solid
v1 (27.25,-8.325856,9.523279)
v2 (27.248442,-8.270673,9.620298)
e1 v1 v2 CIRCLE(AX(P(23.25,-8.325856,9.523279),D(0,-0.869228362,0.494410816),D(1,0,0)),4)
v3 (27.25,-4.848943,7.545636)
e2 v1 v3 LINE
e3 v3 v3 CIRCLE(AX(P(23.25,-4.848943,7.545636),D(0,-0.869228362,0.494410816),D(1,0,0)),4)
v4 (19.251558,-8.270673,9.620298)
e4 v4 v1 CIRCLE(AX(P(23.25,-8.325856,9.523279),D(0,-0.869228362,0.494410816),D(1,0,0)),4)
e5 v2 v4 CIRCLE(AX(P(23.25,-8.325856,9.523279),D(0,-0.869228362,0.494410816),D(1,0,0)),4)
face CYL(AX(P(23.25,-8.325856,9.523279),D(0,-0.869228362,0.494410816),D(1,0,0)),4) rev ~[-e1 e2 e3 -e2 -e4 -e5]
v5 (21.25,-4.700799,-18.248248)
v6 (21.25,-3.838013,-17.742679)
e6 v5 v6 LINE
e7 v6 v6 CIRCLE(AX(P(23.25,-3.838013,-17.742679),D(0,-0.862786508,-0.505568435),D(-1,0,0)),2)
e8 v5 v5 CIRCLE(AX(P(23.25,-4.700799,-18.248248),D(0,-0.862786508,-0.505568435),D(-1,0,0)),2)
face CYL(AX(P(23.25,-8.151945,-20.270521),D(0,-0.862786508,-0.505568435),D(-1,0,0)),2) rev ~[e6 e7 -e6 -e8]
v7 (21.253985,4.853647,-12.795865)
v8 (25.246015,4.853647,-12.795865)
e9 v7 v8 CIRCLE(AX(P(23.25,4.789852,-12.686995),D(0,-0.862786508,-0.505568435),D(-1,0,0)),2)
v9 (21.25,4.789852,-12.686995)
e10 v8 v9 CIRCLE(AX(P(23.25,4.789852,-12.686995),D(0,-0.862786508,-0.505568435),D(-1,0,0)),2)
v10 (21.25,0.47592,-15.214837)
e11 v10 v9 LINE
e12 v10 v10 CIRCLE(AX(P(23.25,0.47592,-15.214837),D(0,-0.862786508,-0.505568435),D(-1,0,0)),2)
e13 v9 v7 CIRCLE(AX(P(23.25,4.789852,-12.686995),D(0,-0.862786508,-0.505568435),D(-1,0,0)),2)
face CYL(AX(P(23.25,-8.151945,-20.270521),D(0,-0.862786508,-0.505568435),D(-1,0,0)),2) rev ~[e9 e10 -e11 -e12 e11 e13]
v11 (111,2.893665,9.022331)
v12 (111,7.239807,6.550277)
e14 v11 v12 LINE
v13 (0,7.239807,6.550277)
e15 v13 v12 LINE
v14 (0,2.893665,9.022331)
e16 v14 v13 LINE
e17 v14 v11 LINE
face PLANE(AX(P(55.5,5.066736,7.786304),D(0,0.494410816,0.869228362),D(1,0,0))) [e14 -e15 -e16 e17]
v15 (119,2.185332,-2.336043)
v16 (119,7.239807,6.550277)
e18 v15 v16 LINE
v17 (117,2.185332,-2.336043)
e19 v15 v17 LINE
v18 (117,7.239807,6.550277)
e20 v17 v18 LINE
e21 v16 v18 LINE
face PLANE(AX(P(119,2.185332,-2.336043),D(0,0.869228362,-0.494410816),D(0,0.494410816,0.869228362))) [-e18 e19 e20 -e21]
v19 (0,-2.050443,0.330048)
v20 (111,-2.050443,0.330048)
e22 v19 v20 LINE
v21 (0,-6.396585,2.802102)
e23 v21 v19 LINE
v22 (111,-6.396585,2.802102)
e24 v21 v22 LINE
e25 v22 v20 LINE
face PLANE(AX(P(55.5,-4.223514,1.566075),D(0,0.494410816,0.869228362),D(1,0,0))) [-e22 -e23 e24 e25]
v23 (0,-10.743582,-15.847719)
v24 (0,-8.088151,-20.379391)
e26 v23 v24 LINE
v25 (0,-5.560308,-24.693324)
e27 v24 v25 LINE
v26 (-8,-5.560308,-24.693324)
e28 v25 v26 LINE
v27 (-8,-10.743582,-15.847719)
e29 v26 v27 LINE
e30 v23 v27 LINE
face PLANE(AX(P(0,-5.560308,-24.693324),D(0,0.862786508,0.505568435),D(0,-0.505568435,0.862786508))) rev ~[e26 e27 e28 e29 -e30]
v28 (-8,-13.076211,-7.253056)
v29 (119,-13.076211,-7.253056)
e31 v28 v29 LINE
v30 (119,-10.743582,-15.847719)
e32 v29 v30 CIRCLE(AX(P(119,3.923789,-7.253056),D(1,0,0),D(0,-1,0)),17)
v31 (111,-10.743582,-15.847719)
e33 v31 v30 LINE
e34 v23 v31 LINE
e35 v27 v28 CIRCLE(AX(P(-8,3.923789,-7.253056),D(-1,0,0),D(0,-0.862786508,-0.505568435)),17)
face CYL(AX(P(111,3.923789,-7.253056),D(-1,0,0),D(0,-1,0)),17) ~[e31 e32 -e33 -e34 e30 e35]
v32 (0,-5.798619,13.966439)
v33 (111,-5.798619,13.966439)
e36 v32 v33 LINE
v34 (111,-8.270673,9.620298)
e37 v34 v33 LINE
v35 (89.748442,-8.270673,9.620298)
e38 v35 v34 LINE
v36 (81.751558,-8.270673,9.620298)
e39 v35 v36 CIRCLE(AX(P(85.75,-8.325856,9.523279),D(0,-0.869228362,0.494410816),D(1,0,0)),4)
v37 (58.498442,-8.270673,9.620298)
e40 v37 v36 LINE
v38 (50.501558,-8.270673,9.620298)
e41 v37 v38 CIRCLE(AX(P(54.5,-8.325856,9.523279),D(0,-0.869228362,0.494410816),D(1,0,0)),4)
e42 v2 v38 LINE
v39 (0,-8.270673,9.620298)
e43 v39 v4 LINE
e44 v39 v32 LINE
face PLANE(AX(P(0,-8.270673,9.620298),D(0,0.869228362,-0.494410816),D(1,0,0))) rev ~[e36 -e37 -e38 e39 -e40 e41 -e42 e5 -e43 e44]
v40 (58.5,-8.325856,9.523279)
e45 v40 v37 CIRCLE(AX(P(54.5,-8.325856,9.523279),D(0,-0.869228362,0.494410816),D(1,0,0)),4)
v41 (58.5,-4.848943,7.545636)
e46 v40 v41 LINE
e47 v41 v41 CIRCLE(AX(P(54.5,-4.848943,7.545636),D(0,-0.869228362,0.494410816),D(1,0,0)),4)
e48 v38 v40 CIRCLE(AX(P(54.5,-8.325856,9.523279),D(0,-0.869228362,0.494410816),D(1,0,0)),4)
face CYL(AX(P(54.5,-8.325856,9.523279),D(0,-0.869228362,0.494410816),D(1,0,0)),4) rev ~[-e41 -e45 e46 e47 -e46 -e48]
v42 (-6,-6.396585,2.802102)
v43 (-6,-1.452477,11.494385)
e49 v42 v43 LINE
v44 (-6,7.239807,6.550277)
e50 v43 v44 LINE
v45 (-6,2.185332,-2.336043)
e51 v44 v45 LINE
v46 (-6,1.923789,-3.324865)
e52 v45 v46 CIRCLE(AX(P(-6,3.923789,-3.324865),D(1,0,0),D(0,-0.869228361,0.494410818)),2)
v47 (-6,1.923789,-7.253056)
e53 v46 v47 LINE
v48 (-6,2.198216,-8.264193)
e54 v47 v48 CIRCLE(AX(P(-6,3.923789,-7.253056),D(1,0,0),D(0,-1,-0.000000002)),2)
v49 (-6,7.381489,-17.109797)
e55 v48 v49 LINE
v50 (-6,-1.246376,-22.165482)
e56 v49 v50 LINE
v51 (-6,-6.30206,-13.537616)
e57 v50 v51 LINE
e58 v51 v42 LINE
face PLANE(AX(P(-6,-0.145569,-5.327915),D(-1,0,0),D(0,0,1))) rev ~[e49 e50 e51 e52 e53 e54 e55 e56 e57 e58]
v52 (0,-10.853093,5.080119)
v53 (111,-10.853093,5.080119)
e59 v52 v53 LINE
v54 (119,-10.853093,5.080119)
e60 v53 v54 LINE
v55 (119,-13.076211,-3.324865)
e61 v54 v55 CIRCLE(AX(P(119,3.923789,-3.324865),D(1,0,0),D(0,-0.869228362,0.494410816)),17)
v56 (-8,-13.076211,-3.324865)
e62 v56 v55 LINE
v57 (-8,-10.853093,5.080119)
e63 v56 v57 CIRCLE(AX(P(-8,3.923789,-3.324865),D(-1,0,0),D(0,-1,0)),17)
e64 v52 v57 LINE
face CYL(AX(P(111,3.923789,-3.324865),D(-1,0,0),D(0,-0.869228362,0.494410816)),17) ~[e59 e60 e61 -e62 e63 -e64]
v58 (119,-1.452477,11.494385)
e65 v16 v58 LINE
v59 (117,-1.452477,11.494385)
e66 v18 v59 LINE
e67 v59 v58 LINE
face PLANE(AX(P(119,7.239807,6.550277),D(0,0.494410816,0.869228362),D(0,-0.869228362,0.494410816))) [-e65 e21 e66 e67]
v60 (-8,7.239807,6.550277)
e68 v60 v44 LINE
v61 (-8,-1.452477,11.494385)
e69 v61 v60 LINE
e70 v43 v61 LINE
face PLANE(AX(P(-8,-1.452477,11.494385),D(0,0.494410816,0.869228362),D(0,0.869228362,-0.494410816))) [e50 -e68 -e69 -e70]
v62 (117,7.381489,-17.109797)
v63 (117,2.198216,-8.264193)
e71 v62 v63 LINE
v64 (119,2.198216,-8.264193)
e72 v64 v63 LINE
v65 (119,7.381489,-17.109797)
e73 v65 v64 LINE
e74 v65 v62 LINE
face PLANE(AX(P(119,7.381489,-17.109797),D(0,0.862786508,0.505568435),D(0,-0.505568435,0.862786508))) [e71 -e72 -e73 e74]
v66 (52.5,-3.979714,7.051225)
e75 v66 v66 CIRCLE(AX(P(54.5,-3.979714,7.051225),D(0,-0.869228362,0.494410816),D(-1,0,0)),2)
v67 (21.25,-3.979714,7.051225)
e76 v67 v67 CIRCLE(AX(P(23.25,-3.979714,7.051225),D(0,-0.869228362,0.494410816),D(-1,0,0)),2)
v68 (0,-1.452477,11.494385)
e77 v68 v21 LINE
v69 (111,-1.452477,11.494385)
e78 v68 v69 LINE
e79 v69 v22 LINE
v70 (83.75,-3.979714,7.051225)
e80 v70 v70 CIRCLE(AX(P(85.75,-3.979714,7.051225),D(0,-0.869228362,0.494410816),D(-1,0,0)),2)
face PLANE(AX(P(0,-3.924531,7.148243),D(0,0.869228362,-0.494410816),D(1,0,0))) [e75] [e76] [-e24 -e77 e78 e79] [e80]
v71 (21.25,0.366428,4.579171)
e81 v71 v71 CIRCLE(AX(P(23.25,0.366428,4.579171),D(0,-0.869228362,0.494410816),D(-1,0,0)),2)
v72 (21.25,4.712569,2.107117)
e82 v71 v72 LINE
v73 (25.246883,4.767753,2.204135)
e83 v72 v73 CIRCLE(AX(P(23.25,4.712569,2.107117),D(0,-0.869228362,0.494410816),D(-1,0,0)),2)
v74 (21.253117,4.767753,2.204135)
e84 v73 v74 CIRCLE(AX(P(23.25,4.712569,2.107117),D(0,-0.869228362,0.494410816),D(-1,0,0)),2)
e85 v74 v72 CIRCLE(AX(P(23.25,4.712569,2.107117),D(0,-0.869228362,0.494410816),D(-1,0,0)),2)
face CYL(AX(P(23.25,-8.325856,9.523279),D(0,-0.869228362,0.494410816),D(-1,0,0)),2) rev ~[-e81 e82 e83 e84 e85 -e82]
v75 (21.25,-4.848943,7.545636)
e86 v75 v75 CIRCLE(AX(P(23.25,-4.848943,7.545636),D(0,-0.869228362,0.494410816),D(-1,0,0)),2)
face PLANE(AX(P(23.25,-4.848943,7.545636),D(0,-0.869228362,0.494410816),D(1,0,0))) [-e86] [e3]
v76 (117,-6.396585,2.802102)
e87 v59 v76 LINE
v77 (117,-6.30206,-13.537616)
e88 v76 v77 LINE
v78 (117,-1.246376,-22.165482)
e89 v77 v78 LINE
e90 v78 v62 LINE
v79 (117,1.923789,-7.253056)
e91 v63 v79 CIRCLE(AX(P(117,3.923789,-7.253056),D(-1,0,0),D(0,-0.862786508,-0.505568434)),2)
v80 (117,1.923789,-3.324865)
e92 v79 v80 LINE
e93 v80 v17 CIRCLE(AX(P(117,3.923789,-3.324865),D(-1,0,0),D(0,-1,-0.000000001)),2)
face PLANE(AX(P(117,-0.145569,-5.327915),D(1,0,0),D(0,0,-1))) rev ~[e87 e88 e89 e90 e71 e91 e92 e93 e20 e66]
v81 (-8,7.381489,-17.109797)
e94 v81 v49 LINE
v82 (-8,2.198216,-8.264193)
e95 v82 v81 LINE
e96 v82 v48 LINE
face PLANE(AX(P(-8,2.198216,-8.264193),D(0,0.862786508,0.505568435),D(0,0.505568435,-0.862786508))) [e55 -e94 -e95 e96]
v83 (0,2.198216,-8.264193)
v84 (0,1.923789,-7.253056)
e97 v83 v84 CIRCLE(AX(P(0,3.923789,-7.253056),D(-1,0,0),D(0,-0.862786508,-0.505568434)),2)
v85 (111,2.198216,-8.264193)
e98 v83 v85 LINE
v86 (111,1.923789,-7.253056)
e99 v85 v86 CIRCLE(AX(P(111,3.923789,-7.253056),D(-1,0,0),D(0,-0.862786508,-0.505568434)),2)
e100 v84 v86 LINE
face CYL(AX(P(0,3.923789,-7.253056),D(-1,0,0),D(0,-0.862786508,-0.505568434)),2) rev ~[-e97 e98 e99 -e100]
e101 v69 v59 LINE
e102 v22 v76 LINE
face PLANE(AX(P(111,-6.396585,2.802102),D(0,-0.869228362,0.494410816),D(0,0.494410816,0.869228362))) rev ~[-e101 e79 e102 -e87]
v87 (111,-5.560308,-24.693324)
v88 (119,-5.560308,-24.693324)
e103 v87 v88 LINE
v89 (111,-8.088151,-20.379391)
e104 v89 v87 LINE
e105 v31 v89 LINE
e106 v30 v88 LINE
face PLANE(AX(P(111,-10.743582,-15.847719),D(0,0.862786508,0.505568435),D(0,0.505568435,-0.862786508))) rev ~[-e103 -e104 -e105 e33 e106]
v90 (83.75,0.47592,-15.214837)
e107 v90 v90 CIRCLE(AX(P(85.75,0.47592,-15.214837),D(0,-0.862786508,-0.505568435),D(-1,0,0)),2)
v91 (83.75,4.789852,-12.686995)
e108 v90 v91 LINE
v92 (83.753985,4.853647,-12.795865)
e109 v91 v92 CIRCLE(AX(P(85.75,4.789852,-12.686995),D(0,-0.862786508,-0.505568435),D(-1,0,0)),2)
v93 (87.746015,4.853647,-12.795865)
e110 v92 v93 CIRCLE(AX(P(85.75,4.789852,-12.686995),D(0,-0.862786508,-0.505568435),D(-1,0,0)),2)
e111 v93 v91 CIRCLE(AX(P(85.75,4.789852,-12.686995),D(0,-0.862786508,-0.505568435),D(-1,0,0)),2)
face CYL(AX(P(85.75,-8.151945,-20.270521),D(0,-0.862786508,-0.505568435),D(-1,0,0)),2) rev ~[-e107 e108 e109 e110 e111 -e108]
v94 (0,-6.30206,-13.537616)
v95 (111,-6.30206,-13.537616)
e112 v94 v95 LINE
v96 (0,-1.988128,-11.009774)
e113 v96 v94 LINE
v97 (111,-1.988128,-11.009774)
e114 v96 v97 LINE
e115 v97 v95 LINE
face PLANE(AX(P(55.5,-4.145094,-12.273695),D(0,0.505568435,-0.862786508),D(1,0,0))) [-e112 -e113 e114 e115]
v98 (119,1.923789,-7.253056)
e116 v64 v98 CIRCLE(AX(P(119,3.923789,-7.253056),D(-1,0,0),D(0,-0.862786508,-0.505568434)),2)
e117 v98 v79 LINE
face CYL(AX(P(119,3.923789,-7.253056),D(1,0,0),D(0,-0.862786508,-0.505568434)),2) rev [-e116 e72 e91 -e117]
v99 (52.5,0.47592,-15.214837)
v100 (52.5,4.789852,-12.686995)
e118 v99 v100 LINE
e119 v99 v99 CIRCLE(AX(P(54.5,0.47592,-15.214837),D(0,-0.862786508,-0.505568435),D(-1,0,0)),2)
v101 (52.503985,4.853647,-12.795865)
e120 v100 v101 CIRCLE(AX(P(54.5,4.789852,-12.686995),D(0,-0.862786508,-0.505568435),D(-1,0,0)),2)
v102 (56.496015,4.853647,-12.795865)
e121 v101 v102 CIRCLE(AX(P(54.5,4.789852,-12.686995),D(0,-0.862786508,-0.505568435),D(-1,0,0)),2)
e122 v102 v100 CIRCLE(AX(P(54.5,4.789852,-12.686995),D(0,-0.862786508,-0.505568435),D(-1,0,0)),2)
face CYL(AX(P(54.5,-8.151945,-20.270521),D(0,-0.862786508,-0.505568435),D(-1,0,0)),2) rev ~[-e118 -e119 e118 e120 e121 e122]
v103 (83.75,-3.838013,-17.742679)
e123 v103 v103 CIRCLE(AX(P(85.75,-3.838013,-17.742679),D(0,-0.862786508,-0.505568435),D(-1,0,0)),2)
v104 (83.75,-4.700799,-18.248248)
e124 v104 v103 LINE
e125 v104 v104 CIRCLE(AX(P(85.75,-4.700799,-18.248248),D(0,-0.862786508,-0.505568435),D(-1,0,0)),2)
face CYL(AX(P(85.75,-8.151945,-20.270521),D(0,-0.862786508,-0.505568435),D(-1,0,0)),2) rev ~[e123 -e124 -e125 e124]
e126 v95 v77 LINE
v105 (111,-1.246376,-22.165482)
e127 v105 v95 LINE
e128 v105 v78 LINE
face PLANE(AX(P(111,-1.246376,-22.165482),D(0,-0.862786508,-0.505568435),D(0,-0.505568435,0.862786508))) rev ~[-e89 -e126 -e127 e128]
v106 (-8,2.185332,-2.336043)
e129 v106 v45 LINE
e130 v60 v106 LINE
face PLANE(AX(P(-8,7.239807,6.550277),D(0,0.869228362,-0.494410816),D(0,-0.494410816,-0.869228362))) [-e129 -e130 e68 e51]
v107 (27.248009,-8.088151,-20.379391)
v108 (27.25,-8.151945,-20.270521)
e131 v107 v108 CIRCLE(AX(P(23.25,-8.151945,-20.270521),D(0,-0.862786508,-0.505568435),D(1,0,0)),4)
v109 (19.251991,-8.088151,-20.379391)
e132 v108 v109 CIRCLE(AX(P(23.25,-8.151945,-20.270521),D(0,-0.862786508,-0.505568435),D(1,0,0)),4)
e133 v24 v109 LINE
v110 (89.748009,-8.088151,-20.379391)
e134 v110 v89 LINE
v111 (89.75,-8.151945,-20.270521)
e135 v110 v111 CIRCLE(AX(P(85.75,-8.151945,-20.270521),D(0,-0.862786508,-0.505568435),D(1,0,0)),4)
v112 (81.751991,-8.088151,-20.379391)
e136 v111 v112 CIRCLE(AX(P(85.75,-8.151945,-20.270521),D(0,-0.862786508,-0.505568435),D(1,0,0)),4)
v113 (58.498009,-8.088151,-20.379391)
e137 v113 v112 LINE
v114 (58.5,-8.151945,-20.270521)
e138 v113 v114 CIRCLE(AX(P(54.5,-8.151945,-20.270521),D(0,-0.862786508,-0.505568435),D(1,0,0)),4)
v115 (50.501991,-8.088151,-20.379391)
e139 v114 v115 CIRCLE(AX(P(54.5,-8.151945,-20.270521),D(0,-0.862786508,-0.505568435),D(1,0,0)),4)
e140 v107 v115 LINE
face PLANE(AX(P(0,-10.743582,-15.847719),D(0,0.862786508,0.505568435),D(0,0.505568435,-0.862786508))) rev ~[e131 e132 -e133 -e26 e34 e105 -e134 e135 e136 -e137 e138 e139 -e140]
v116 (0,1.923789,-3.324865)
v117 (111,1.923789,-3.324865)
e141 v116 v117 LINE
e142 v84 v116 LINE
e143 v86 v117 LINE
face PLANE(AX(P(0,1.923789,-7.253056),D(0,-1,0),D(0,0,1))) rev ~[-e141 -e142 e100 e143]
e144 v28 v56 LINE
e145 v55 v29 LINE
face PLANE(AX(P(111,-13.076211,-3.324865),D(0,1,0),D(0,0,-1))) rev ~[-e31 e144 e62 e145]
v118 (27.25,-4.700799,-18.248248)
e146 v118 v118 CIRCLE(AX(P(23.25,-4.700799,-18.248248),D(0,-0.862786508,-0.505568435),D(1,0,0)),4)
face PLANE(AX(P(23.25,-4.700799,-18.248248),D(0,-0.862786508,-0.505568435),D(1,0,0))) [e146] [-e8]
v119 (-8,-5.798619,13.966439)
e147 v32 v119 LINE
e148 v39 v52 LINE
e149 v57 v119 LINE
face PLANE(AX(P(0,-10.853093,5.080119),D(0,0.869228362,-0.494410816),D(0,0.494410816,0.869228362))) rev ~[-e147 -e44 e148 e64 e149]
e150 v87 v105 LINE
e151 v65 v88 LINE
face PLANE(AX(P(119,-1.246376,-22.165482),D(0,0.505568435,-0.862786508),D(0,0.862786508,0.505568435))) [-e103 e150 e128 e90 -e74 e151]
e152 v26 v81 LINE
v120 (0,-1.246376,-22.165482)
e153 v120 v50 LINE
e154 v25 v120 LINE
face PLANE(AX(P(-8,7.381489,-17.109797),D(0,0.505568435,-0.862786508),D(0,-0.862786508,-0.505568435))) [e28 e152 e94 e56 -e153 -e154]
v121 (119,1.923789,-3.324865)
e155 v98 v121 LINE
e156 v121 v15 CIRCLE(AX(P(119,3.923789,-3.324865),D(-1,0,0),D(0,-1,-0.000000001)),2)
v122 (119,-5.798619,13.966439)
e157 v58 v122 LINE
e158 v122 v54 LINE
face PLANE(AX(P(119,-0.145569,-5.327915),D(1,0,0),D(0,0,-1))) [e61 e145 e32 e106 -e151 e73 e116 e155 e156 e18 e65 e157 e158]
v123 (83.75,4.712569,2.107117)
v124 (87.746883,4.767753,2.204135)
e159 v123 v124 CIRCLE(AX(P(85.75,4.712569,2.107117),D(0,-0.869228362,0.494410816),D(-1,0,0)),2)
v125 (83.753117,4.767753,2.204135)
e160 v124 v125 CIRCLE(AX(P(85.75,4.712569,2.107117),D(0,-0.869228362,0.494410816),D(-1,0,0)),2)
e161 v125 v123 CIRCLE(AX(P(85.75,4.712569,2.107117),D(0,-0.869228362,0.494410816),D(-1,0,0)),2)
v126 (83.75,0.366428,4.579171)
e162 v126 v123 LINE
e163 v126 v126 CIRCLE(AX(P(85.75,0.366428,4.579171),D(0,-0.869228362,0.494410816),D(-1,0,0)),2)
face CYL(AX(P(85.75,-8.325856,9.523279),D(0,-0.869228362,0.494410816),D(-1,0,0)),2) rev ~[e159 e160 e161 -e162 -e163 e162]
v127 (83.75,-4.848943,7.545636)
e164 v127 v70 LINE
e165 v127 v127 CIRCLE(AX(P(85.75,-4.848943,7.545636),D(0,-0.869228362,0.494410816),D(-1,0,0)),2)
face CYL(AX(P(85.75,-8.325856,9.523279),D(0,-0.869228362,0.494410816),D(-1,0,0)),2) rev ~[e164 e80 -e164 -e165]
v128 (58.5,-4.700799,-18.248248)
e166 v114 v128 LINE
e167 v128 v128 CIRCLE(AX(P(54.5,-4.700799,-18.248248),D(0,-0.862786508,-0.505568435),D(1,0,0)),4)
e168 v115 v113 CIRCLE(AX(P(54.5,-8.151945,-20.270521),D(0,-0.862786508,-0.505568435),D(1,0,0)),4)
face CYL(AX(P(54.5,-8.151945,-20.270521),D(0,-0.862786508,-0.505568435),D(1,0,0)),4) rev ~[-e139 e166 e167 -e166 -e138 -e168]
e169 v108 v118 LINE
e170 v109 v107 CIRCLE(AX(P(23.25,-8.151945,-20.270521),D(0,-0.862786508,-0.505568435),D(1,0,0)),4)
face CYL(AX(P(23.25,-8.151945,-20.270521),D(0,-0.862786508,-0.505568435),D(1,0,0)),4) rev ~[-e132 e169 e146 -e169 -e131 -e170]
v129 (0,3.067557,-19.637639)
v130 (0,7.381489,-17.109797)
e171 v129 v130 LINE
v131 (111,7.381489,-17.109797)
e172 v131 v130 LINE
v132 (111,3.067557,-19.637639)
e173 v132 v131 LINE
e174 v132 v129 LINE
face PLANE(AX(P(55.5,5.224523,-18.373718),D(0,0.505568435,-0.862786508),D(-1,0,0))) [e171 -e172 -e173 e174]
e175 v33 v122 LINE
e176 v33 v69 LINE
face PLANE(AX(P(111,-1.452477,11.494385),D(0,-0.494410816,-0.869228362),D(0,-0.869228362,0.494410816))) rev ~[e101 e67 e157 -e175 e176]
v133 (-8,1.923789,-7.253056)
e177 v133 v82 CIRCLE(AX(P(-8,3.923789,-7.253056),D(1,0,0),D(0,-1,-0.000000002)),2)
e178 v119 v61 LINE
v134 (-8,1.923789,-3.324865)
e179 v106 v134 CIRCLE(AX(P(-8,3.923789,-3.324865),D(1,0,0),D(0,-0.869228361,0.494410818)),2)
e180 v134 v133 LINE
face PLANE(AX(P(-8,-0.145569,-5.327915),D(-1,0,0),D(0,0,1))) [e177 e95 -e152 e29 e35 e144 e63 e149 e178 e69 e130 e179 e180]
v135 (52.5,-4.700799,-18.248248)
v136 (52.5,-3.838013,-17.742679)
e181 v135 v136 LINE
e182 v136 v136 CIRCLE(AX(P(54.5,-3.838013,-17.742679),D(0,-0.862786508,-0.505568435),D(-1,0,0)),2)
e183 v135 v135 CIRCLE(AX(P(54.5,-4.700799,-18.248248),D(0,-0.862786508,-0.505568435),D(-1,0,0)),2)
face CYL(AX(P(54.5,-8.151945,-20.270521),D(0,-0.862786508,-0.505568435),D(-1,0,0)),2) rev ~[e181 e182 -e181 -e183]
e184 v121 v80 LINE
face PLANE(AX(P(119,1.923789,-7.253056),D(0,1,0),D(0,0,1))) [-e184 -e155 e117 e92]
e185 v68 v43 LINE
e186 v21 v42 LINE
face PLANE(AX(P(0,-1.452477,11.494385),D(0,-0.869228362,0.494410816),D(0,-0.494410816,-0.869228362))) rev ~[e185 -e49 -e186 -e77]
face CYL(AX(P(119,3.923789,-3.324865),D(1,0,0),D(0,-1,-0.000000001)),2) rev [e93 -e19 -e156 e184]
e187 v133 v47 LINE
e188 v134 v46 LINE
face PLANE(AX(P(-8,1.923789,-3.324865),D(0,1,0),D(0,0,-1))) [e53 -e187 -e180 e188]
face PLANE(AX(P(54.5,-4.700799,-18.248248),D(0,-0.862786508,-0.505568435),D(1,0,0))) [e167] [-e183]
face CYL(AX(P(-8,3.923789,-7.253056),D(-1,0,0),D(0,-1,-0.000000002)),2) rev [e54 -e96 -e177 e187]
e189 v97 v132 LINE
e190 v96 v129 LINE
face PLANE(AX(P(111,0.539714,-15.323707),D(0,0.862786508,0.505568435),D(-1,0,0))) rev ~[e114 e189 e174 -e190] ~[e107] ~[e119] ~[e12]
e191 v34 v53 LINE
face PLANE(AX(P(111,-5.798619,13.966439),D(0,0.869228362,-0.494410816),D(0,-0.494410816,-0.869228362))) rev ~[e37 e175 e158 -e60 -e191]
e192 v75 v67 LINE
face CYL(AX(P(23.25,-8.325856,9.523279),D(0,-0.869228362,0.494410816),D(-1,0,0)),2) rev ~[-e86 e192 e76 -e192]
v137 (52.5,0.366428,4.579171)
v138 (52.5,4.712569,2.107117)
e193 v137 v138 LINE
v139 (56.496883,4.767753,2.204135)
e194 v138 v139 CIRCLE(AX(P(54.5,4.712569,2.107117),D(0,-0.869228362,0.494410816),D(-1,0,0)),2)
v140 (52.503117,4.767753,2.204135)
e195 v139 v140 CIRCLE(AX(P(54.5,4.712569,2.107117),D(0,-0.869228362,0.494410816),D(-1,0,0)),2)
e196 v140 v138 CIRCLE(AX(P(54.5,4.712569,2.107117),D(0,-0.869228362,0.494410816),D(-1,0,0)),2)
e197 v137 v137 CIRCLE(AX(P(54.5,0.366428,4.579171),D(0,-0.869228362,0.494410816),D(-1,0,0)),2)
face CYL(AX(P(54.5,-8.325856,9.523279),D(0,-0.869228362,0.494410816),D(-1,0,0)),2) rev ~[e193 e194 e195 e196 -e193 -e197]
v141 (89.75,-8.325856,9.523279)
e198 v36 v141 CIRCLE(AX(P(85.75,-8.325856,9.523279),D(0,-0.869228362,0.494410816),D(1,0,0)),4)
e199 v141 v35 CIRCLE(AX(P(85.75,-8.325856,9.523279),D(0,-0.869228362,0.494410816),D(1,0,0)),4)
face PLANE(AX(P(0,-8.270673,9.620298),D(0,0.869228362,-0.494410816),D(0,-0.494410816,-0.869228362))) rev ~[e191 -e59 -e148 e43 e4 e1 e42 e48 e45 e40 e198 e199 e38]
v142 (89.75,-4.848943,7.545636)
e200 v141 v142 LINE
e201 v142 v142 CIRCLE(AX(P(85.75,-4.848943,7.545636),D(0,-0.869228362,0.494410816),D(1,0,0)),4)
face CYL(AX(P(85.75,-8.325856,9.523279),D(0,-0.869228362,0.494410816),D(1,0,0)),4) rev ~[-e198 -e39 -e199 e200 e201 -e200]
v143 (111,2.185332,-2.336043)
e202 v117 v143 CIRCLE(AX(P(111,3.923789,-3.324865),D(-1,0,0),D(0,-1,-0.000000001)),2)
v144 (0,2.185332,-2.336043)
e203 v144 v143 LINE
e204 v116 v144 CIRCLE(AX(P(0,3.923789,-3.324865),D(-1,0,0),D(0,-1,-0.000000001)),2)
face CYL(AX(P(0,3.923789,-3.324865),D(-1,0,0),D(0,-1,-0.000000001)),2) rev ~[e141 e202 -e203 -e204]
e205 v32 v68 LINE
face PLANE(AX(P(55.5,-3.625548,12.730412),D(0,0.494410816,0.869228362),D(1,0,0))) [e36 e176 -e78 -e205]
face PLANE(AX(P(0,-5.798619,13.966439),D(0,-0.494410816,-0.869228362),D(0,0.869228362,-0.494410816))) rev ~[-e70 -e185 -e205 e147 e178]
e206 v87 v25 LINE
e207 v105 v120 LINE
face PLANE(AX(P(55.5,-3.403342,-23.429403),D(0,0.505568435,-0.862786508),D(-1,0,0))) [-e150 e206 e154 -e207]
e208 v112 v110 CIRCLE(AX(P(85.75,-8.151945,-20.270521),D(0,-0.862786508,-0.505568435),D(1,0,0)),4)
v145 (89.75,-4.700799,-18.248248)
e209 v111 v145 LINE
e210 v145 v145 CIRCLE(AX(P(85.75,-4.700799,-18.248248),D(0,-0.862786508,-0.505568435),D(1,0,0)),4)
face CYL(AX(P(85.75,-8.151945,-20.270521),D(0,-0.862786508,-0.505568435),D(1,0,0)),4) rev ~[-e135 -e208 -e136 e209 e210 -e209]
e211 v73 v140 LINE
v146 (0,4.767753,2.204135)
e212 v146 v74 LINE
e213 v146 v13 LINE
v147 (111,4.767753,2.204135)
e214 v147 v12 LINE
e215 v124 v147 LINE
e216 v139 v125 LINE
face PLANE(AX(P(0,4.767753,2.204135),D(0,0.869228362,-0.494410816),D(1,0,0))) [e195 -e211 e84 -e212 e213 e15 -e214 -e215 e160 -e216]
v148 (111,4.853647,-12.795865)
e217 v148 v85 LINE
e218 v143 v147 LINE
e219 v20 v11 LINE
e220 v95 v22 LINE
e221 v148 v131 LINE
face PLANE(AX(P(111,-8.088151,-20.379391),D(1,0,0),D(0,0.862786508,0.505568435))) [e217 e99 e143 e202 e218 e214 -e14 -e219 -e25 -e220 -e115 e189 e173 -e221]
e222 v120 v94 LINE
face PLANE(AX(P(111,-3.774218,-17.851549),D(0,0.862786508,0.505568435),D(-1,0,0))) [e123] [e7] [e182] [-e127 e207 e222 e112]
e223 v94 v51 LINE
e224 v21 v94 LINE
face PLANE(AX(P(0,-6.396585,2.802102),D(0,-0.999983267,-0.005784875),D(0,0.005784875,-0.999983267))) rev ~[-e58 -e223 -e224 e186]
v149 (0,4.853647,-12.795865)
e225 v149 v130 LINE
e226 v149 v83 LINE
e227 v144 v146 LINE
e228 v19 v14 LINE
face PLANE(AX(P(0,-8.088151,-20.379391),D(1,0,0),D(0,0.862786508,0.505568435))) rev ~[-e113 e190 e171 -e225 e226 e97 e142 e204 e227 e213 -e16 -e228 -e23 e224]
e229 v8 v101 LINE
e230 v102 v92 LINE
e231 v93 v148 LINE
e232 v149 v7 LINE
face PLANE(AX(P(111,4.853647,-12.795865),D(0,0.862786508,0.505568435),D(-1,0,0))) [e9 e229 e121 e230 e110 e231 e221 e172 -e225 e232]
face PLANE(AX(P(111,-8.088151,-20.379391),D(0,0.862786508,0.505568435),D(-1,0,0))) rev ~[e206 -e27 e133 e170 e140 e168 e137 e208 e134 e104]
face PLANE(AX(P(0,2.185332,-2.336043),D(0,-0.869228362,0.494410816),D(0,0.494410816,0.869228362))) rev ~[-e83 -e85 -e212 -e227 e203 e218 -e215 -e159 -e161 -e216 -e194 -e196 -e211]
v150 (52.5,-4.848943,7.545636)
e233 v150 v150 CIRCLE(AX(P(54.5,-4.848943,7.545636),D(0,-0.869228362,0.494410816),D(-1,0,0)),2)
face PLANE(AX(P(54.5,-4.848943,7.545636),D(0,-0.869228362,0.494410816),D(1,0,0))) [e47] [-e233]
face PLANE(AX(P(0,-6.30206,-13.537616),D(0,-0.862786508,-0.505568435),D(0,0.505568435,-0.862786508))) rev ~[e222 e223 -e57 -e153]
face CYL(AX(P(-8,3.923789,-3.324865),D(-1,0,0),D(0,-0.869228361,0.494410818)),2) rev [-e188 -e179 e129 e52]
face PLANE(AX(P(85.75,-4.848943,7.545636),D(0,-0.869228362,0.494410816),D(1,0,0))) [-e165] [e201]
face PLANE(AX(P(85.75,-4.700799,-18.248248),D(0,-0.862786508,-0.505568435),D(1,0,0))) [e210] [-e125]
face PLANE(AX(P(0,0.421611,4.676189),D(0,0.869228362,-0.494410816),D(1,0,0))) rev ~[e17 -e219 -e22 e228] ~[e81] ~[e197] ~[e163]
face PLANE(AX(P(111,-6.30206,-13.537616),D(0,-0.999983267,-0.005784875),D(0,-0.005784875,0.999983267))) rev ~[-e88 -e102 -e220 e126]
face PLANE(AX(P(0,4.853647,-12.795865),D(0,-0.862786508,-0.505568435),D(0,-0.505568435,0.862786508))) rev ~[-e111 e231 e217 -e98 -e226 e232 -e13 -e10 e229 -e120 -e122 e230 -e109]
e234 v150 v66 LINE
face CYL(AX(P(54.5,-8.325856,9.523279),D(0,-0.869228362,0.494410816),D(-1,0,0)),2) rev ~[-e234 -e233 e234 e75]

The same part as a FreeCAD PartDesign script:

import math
import FreeCAD as App
import Part
import Sketcher

V = App.Vector


def add_polygon(sketch, points):
    """Adds a closed chain of lines whose ends are joined by coincident constraints."""
    first, n = sketch.GeometryCount, len(points)
    for a, b in zip(points, points[1:] + points[:1]):
        sketch.addGeometry(Part.LineSegment(App.Vector(*a, 0), App.Vector(*b, 0)), False)
    for i in range(n):
        sketch.addConstraint(Sketcher.Constraint("Coincident", first + i, 2, first + (i + 1) % n, 1))

doc = App.newDocument("Part")
body = doc.addObject("PartDesign::Body", "Body")

# Sketch on YZ plane
sketch1 = body.newObject("Sketcher::SketchObject", "Sketch")
sketch1.AttachmentSupport = (doc.getObject("YZ_Plane"), [""])
sketch1.MapMode = "FlatFace"
sketch1.addGeometry([
    Part.LineSegment(V(2.2, -2.3, 0), V(4.8, 2.2, 0)),  # 0
    Part.LineSegment(V(4.8, 2.2, 0), V(-3.9, 7.1, 0)),  # 1
    Part.LineSegment(V(-3.9, 7.1, 0), V(-8.3, 9.6, 0)),  # 2
    Part.LineSegment(V(-8.3, 9.6, 0), V(-10.9, 5.1, 0)),  # 3
    Part.ArcOfCircle(Part.Circle(V(3.9, -3.3, 0), V(0, 0, 1), 17), math.radians(150), math.radians(180)),  # 4
    Part.LineSegment(V(-13.1, -3.3, 0), V(-13.1, -7.3, 0)),  # 5
    Part.ArcOfCircle(Part.Circle(V(3.9, -7.3, 0), V(0, 0, 1), 17), math.radians(-180), math.radians(-150)),  # 6
    Part.LineSegment(V(-10.7, -15.8, 0), V(-8.1, -20.4, 0)),  # 7
    Part.LineSegment(V(-8.1, -20.4, 0), V(4.9, -12.8, 0)),  # 8
    Part.LineSegment(V(4.9, -12.8, 0), V(2.2, -8.3, 0)),  # 9
    Part.ArcOfCircle(Part.Circle(V(3.9, -7.3, 0), V(0, 0, 1), 2), math.radians(-180), math.radians(-150)),  # 10
    Part.LineSegment(V(1.9, -7.3, 0), V(1.9, -3.3, 0)),  # 11
    Part.ArcOfCircle(Part.Circle(V(3.9, -3.3, 0), V(0, 0, 1), 2), math.radians(150), math.radians(180)),  # 12
], False)
sketch1.addConstraint([
    Sketcher.Constraint("Coincident", 0, 2, 1, 1),
    Sketcher.Constraint("Coincident", 1, 2, 2, 1),
    Sketcher.Constraint("Coincident", 2, 2, 3, 1),
    Sketcher.Constraint("Tangent", 3, 2, 4, 1),
    Sketcher.Constraint("Tangent", 4, 2, 5, 1),
    Sketcher.Constraint("Tangent", 5, 2, 6, 1),
    Sketcher.Constraint("Tangent", 6, 2, 7, 1),
    Sketcher.Constraint("Coincident", 7, 2, 8, 1),
    Sketcher.Constraint("Coincident", 8, 2, 9, 1),
    Sketcher.Constraint("Tangent", 9, 2, 10, 2),
    Sketcher.Constraint("Tangent", 10, 1, 11, 1),
    Sketcher.Constraint("Tangent", 11, 2, 12, 2),
    Sketcher.Constraint("Tangent", 12, 1, 0, 1),
    Sketcher.Constraint("Vertical", 5),
    Sketcher.Constraint("Vertical", 11),
    Sketcher.Constraint("Coincident", 10, 3, 6, 3),
    Sketcher.Constraint("Coincident", 12, 3, 4, 3),
    Sketcher.Constraint("Equal", 4, 6),
    Sketcher.Constraint("Perpendicular", 0, 1),
    Sketcher.Constraint("Parallel", 1, 2),
    Sketcher.Constraint("Perpendicular", 2, 3),
    Sketcher.Constraint("Perpendicular", 7, 8),
    Sketcher.Constraint("Perpendicular", 8, 9),
    Sketcher.Constraint("Radius", 4, 17.0),
    Sketcher.Constraint("Radius", 10, 2.0),
    Sketcher.Constraint("Distance", 1, 10.0),
    Sketcher.Constraint("DistanceY", 12, 3, 0, 2, 5.529),
    Sketcher.Constraint("DistanceY", 8, 2, 4, 3, 9.471),
    Sketcher.Constraint("DistanceY", 5, 2, 5, 1, 3.928191),
    Sketcher.Constraint("DistanceY", 6, 3, 1, 2, 14.401299),
    Sketcher.Constraint("DistanceX", -1, 1, 4, 3, 3.923789),
    Sketcher.Constraint("DistanceY", -1, 1, 3, 2, 5.080119),
    Sketcher.Constraint("DistanceX", 6, 2, -1, 1, 10.743582),
])
pad1 = body.newObject("PartDesign::Pad", "Pad")
pad1.Profile = sketch1
pad1.Length = 111

# Sketch on an angled plane
sketch2 = body.newObject("Sketcher::SketchObject", "Sketch001")
sketch2.Placement = App.Placement(V(0, 6.822115, -11.642398), App.Rotation(V(1, 0, 0), V(0, -0.862786508, -0.505568435), V(0, 0.505568435, -0.862786508), "ZXY"))
add_polygon(sketch2, [(0, 12), (0, 7), (111, 7), (111, 12)])  # lines 0-3
sketch2.addConstraint([
    Sketcher.Constraint("Vertical", 0),
    Sketcher.Constraint("Horizontal", 1),
    Sketcher.Constraint("Vertical", 2),
    Sketcher.Constraint("Horizontal", 3),
    Sketcher.Constraint("PointOnObject", 0, 2, -2),
    Sketcher.Constraint("DistanceX", 1, 1, 1, 2, 111.0),
    Sketcher.Constraint("DistanceY", 0, 2, 0, 1, 5.0),
    Sketcher.Constraint("DistanceY", -1, 1, 0, 2, 7.281524),
])
pocket1 = body.newObject("PartDesign::Pocket", "Pocket")
pocket1.Profile = sketch2
pocket1.Length = 5

# Sketch on an angled plane
sketch3 = body.newObject("Sketcher::SketchObject", "Sketch002")
sketch3.Placement = App.Placement(V(0, 2.112679, 3.714322), App.Rotation(V(1, 0, 0), V(0, 0.869228362, -0.494410816), V(0, 0.494410816, 0.869228362), "ZXY"))
add_polygon(sketch3, [(0, -2), (0, -7), (111, -7), (111, -2)])  # lines 0-3
sketch3.addConstraint([
    Sketcher.Constraint("Vertical", 0),
    Sketcher.Constraint("Horizontal", 1),
    Sketcher.Constraint("Vertical", 2),
    Sketcher.Constraint("Horizontal", 3),
    Sketcher.Constraint("PointOnObject", 0, 2, -2),
    Sketcher.Constraint("DistanceX", 1, 1, 1, 2, 111.0),
    Sketcher.Constraint("DistanceY", 0, 2, 0, 1, 5.0),
    Sketcher.Constraint("DistanceY", 0, 2, -1, 1, 6.945483),
])
pocket2 = body.newObject("PartDesign::Pocket", "Pocket001")
pocket2.Profile = sketch3
pocket2.Length = 5

# Sketch on an angled plane
sketch4 = body.newObject("Sketcher::SketchObject", "Sketch003")
sketch4.Placement = App.Placement(V(0, 2.112679, 3.714322), App.Rotation(V(1, 0, 0), V(0, 0.869228362, -0.494410816), V(0, 0.494410816, 0.869228362), "ZXY"))
add_polygon(sketch4, [(0, 3), (0, -2), (111, -2), (111, 3)])  # lines 0-3
sketch4.addConstraint([
    Sketcher.Constraint("Vertical", 0),
    Sketcher.Constraint("Horizontal", 1),
    Sketcher.Constraint("Vertical", 2),
    Sketcher.Constraint("Horizontal", 3),
    Sketcher.Constraint("PointOnObject", 0, 2, -2),
    Sketcher.Constraint("DistanceX", 1, 1, 1, 2, 111.0),
    Sketcher.Constraint("DistanceY", 0, 2, 0, 1, 5.0),
    Sketcher.Constraint("DistanceY", 0, 2, -1, 1, 1.945483),
])
pad2 = body.newObject("PartDesign::Pad", "Pad001")
pad2.Profile = sketch4
pad2.Length = 5

# Sketch on an angled plane
sketch5 = body.newObject("Sketcher::SketchObject", "Sketch004")
sketch5.Placement = App.Placement(V(0, 2.112679, 3.714322), App.Rotation(V(1, 0, 0), V(0, 0.869228362, -0.494410816), V(0, 0.494410816, 0.869228362), "ZXY"))
add_polygon(sketch5, [(0, -7), (0, -12), (111, -12), (111, -7)])  # lines 0-3
sketch5.addConstraint([
    Sketcher.Constraint("Vertical", 0),
    Sketcher.Constraint("Horizontal", 1),
    Sketcher.Constraint("Vertical", 2),
    Sketcher.Constraint("Horizontal", 3),
    Sketcher.Constraint("PointOnObject", 0, 2, -2),
    Sketcher.Constraint("DistanceX", 1, 1, 1, 2, 111.0),
    Sketcher.Constraint("DistanceY", 0, 2, 0, 1, 5.0),
    Sketcher.Constraint("DistanceY", 0, 2, -1, 1, 11.945483),
])
pad3 = body.newObject("PartDesign::Pad", "Pad002")
pad3.Profile = sketch5
pad3.Length = 5

# Sketch on an angled plane
sketch6 = body.newObject("Sketcher::SketchObject", "Sketch005")
sketch6.Placement = App.Placement(V(0, 6.822115, -11.642398), App.Rotation(V(-1, 0, 0), V(0, 0.862786508, 0.505568435), V(0, 0.505568435, -0.862786508), "ZXY"))
add_polygon(sketch6, [(-111, -2), (-111, -7), (0, -7), (0, -2)])  # lines 0-3
sketch6.addConstraint([
    Sketcher.Constraint("Vertical", 0),
    Sketcher.Constraint("Horizontal", 1),
    Sketcher.Constraint("Vertical", 2),
    Sketcher.Constraint("Horizontal", 3),
    Sketcher.Constraint("PointOnObject", 1, 2, -2),
    Sketcher.Constraint("DistanceX", 1, 1, 1, 2, 111.0),
    Sketcher.Constraint("DistanceY", 0, 2, 0, 1, 5.0),
    Sketcher.Constraint("DistanceY", 0, 2, -1, 1, 7.281524),
])
pad4 = body.newObject("PartDesign::Pad", "Pad003")
pad4.Profile = sketch6
pad4.Length = 5

# Sketch on an angled plane
sketch7 = body.newObject("Sketcher::SketchObject", "Sketch006")
sketch7.Placement = App.Placement(V(0, 6.822115, -11.642398), App.Rotation(V(-1, 0, 0), V(0, 0.862786508, 0.505568435), V(0, 0.505568435, -0.862786508), "ZXY"))
add_polygon(sketch7, [(-111, -12), (-111, -17), (0, -17), (0, -12)])  # lines 0-3
sketch7.addConstraint([
    Sketcher.Constraint("Vertical", 0),
    Sketcher.Constraint("Horizontal", 1),
    Sketcher.Constraint("Vertical", 2),
    Sketcher.Constraint("Horizontal", 3),
    Sketcher.Constraint("PointOnObject", 1, 2, -2),
    Sketcher.Constraint("DistanceX", 1, 1, 1, 2, 111.0),
    Sketcher.Constraint("DistanceY", 0, 2, 0, 1, 5.0),
    Sketcher.Constraint("DistanceY", 0, 2, -1, 1, 17.281524),
])
pad5 = body.newObject("PartDesign::Pad", "Pad004")
pad5.Profile = sketch7
pad5.Length = 5

# Sketch on YZ plane
sketch8 = body.newObject("Sketcher::SketchObject", "Sketch007")
sketch8.AttachmentSupport = (doc.getObject("YZ_Plane"), [""])
sketch8.MapMode = "FlatFace"
sketch8.addGeometry([
    Part.LineSegment(V(-6.4, 2.8, 0), V(-6.3, -13.5, 0)),  # 0
    Part.LineSegment(V(-6.3, -13.5, 0), V(-1.2, -22.2, 0)),  # 1
    Part.LineSegment(V(-1.2, -22.2, 0), V(-5.6, -24.7, 0)),  # 2
    Part.LineSegment(V(-5.6, -24.7, 0), V(-10.7, -15.8, 0)),  # 3
    Part.ArcOfCircle(Part.Circle(V(3.9, -7.3, 0), V(0, 0, 1), 17), math.radians(-180), math.radians(-150)),  # 4
    Part.LineSegment(V(-13.1, -7.3, 0), V(-13.1, -3.3, 0)),  # 5
    Part.ArcOfCircle(Part.Circle(V(3.9, -3.3, 0), V(0, 0, 1), 17), math.radians(150), math.radians(180)),  # 6
    Part.LineSegment(V(-10.9, 5.1, 0), V(-5.8, 14, 0)),  # 7
    Part.LineSegment(V(-5.8, 14, 0), V(-1.5, 11.5, 0)),  # 8
    Part.LineSegment(V(-1.5, 11.5, 0), V(-6.4, 2.8, 0)),  # 9
], False)
sketch8.addConstraint([
    Sketcher.Constraint("Coincident", 0, 2, 1, 1),
    Sketcher.Constraint("Coincident", 1, 2, 2, 1),
    Sketcher.Constraint("Coincident", 2, 2, 3, 1),
    Sketcher.Constraint("Tangent", 3, 2, 4, 2),
    Sketcher.Constraint("Tangent", 4, 1, 5, 1),
    Sketcher.Constraint("Tangent", 5, 2, 6, 2),
    Sketcher.Constraint("Tangent", 6, 1, 7, 1),
    Sketcher.Constraint("Coincident", 7, 2, 8, 1),
    Sketcher.Constraint("Coincident", 8, 2, 9, 1),
    Sketcher.Constraint("Coincident", 9, 2, 0, 1),
    Sketcher.Constraint("Vertical", 5),
    Sketcher.Constraint("Equal", 4, 6),
    Sketcher.Constraint("Perpendicular", 1, 2),
    Sketcher.Constraint("Perpendicular", 2, 3),
    Sketcher.Constraint("Perpendicular", 7, 8),
    Sketcher.Constraint("Perpendicular", 8, 9),
    Sketcher.Constraint("Equal", 2, 8),
    Sketcher.Constraint("Equal", 1, 9),
    Sketcher.Constraint("Radius", 4, 17.0),
    Sketcher.Constraint("Distance", 1, 10.0),
    Sketcher.Constraint("Distance", 2, 5.0),
    Sketcher.Constraint("DistanceY", 5, 1, 5, 2, 3.928191),
    Sketcher.Constraint("DistanceY", -1, 1, 9, 2, 2.802102),
    Sketcher.Constraint("Distance", 0, 16.339992),
    Sketcher.Constraint("Distance", 7, 10.223228),
    Sketcher.Constraint("DistanceX", -1, 1, 4, 3, 3.923789),
    Sketcher.Constraint("DistanceX", 0, 2, -1, 1, 6.30206),
    Sketcher.Constraint("DistanceY", 1, 2, -1, 1, 22.165482),
])
pad6 = body.newObject("PartDesign::Pad", "Pad005")
pad6.Profile = sketch8
pad6.Length = 8
pad6.Reversed = True

# Sketch on YZ plane
sketch9 = body.newObject("Sketcher::SketchObject", "Sketch008")
sketch9.AttachmentSupport = (doc.getObject("YZ_Plane"), [""])
sketch9.MapMode = "FlatFace"
sketch9.AttachmentOffset = App.Placement(V(0, 0, -8), App.Rotation())
sketch9.addGeometry([
    Part.LineSegment(V(2.2, -8.3, 0), V(7.4, -17.1, 0)),  # 0
    Part.LineSegment(V(7.4, -17.1, 0), V(-1.2, -22.2, 0)),  # 1
    Part.LineSegment(V(-1.2, -22.2, 0), V(-6.3, -13.5, 0)),  # 2
    Part.LineSegment(V(-6.3, -13.5, 0), V(-6.4, 2.8, 0)),  # 3
    Part.LineSegment(V(-6.4, 2.8, 0), V(-1.5, 11.5, 0)),  # 4
    Part.LineSegment(V(-1.5, 11.5, 0), V(7.2, 6.6, 0)),  # 5
    Part.LineSegment(V(7.2, 6.6, 0), V(2.2, -2.3, 0)),  # 6
    Part.ArcOfCircle(Part.Circle(V(3.9, -3.3, 0), V(0, 0, 1), 2), math.radians(150), math.radians(180)),  # 7
    Part.LineSegment(V(1.9, -3.3, 0), V(1.9, -7.3, 0)),  # 8
    Part.ArcOfCircle(Part.Circle(V(3.9, -7.3, 0), V(0, 0, 1), 2), math.radians(-180), math.radians(-150)),  # 9
], False)
sketch9.addConstraint([
    Sketcher.Constraint("Coincident", 0, 2, 1, 1),
    Sketcher.Constraint("Coincident", 1, 2, 2, 1),
    Sketcher.Constraint("Coincident", 2, 2, 3, 1),
    Sketcher.Constraint("Coincident", 3, 2, 4, 1),
    Sketcher.Constraint("Coincident", 4, 2, 5, 1),
    Sketcher.Constraint("Coincident", 5, 2, 6, 1),
    Sketcher.Constraint("Tangent", 6, 2, 7, 1),
    Sketcher.Constraint("Tangent", 7, 2, 8, 1),
    Sketcher.Constraint("Tangent", 8, 2, 9, 1),
    Sketcher.Constraint("Tangent", 9, 2, 0, 1),
    Sketcher.Constraint("Vertical", 8),
    Sketcher.Constraint("Equal", 7, 9),
    Sketcher.Constraint("Perpendicular", 0, 1),
    Sketcher.Constraint("Perpendicular", 1, 2),
    Sketcher.Constraint("Perpendicular", 4, 5),
    Sketcher.Constraint("Perpendicular", 5, 6),
    Sketcher.Constraint("Equal", 1, 2),
    Sketcher.Constraint("Equal", 2, 4),
    Sketcher.Constraint("Equal", 4, 5),
    Sketcher.Constraint("Radius", 7, 2.0),
    Sketcher.Constraint("Distance", 1, 10.0),
    Sketcher.Constraint("DistanceY", 2, 2, 4, 2, 25.032002),
    Sketcher.Constraint("DistanceY", 8, 2, 8, 1, 3.928191),
    Sketcher.Constraint("DistanceY", -1, 1, 3, 2, 2.802102),
    Sketcher.Constraint("DistanceX", 9, 3, 0, 2, 3.4577),
    Sketcher.Constraint("DistanceY", 0, 2, 3, 2, 19.911899),
    Sketcher.Constraint("Distance", 3, 16.339992),
    Sketcher.Constraint("DistanceX", -1, 1, 7, 3, 3.923789),
])
pad7 = body.newObject("PartDesign::Pad", "Pad006")
pad7.Profile = sketch9
pad7.Length = 2

# Sketch on YZ plane
sketch10 = body.newObject("Sketcher::SketchObject", "Sketch009")
sketch10.AttachmentSupport = (doc.getObject("YZ_Plane"), [""])
sketch10.MapMode = "FlatFace"
sketch10.AttachmentOffset = App.Placement(V(0, 0, 111), App.Rotation())
sketch10.addGeometry([
    Part.LineSegment(V(-6.3, -13.5, 0), V(-6.4, 2.8, 0)),  # 0
    Part.LineSegment(V(-6.4, 2.8, 0), V(-1.5, 11.5, 0)),  # 1
    Part.LineSegment(V(-1.5, 11.5, 0), V(-5.8, 14, 0)),  # 2
    Part.LineSegment(V(-5.8, 14, 0), V(-10.9, 5.1, 0)),  # 3
    Part.ArcOfCircle(Part.Circle(V(3.9, -3.3, 0), V(0, 0, 1), 17), math.radians(150), math.radians(180)),  # 4
    Part.LineSegment(V(-13.1, -3.3, 0), V(-13.1, -7.3, 0)),  # 5
    Part.ArcOfCircle(Part.Circle(V(3.9, -7.3, 0), V(0, 0, 1), 17), math.radians(-180), math.radians(-150)),  # 6
    Part.LineSegment(V(-10.7, -15.8, 0), V(-5.6, -24.7, 0)),  # 7
    Part.LineSegment(V(-5.6, -24.7, 0), V(-1.2, -22.2, 0)),  # 8
    Part.LineSegment(V(-1.2, -22.2, 0), V(-6.3, -13.5, 0)),  # 9
], False)
sketch10.addConstraint([
    Sketcher.Constraint("Coincident", 0, 2, 1, 1),
    Sketcher.Constraint("Coincident", 1, 2, 2, 1),
    Sketcher.Constraint("Coincident", 2, 2, 3, 1),
    Sketcher.Constraint("Tangent", 3, 2, 4, 1),
    Sketcher.Constraint("Tangent", 4, 2, 5, 1),
    Sketcher.Constraint("Tangent", 5, 2, 6, 1),
    Sketcher.Constraint("Tangent", 6, 2, 7, 1),
    Sketcher.Constraint("Coincident", 7, 2, 8, 1),
    Sketcher.Constraint("Coincident", 8, 2, 9, 1),
    Sketcher.Constraint("Coincident", 9, 2, 0, 1),
    Sketcher.Constraint("Vertical", 5),
    Sketcher.Constraint("Equal", 4, 6),
    Sketcher.Constraint("Perpendicular", 1, 2),
    Sketcher.Constraint("Perpendicular", 2, 3),
    Sketcher.Constraint("Perpendicular", 7, 8),
    Sketcher.Constraint("Perpendicular", 8, 9),
    Sketcher.Constraint("Equal", 2, 8),
    Sketcher.Constraint("Equal", 1, 9),
    Sketcher.Constraint("Radius", 4, 17.0),
    Sketcher.Constraint("Distance", 1, 10.0),
    Sketcher.Constraint("Distance", 2, 5.0),
    Sketcher.Constraint("DistanceY", 5, 2, 5, 1, 3.928191),
    Sketcher.Constraint("DistanceY", -1, 1, 0, 2, 2.802102),
    Sketcher.Constraint("Distance", 0, 16.339992),
    Sketcher.Constraint("Distance", 3, 10.223228),
    Sketcher.Constraint("DistanceX", -1, 1, 4, 3, 3.923789),
    Sketcher.Constraint("DistanceX", 2, 2, -1, 1, 5.798619),
    Sketcher.Constraint("DistanceX", 6, 2, -1, 1, 10.743582),
])
pad8 = body.newObject("PartDesign::Pad", "Pad007")
pad8.Profile = sketch10
pad8.Length = 8

# Sketch on YZ plane
sketch11 = body.newObject("Sketcher::SketchObject", "Sketch010")
sketch11.AttachmentSupport = (doc.getObject("YZ_Plane"), [""])
sketch11.MapMode = "FlatFace"
sketch11.AttachmentOffset = App.Placement(V(0, 0, 119), App.Rotation())
sketch11.addGeometry([
    Part.LineSegment(V(-1.2, -22.2, 0), V(7.4, -17.1, 0)),  # 0
    Part.LineSegment(V(7.4, -17.1, 0), V(2.2, -8.3, 0)),  # 1
    Part.ArcOfCircle(Part.Circle(V(3.9, -7.3, 0), V(0, 0, 1), 2), math.radians(-180), math.radians(-150)),  # 2
    Part.LineSegment(V(1.9, -7.3, 0), V(1.9, -3.3, 0)),  # 3
    Part.ArcOfCircle(Part.Circle(V(3.9, -3.3, 0), V(0, 0, 1), 2), math.radians(150), math.radians(180)),  # 4
    Part.LineSegment(V(2.2, -2.3, 0), V(7.2, 6.6, 0)),  # 5
    Part.LineSegment(V(7.2, 6.6, 0), V(-1.5, 11.5, 0)),  # 6
    Part.LineSegment(V(-1.5, 11.5, 0), V(-6.4, 2.8, 0)),  # 7
    Part.LineSegment(V(-6.4, 2.8, 0), V(-6.3, -13.5, 0)),  # 8
    Part.LineSegment(V(-6.3, -13.5, 0), V(-1.2, -22.2, 0)),  # 9
], False)
sketch11.addConstraint([
    Sketcher.Constraint("Coincident", 0, 2, 1, 1),
    Sketcher.Constraint("Tangent", 1, 2, 2, 2),
    Sketcher.Constraint("Tangent", 2, 1, 3, 1),
    Sketcher.Constraint("Tangent", 3, 2, 4, 2),
    Sketcher.Constraint("Tangent", 4, 1, 5, 1),
    Sketcher.Constraint("Coincident", 5, 2, 6, 1),
    Sketcher.Constraint("Coincident", 6, 2, 7, 1),
    Sketcher.Constraint("Coincident", 7, 2, 8, 1),
    Sketcher.Constraint("Coincident", 8, 2, 9, 1),
    Sketcher.Constraint("Coincident", 9, 2, 0, 1),
    Sketcher.Constraint("Vertical", 3),
    Sketcher.Constraint("Equal", 2, 4),
    Sketcher.Constraint("Perpendicular", 0, 1),
    Sketcher.Constraint("Perpendicular", 5, 6),
    Sketcher.Constraint("Perpendicular", 6, 7),
    Sketcher.Constraint("Parallel", 1, 9),
    Sketcher.Constraint("Equal", 0, 6),
    Sketcher.Constraint("Equal", 6, 7),
    Sketcher.Constraint("Equal", 7, 9),
    Sketcher.Constraint("Radius", 2, 2.0),
    Sketcher.Constraint("Distance", 0, 10.0),
    Sketcher.Constraint("DistanceY", 3, 1, 3, 2, 3.928191),
    Sketcher.Constraint("DistanceY", -1, 1, 7, 2, 2.802102),
    Sketcher.Constraint("DistanceX", 2, 3, 0, 2, 3.4577),
    Sketcher.Constraint("Distance", 5, 10.223228),
    Sketcher.Constraint("Distance", 8, 16.339992),
    Sketcher.Constraint("DistanceX", -1, 1, 2, 3, 3.923789),
    Sketcher.Constraint("DistanceX", 8, 2, -1, 1, 6.30206),
])
pad9 = body.newObject("PartDesign::Pad", "Pad008")
pad9.Profile = sketch11
pad9.Length = 2
pad9.Reversed = True

# Sketch on an angled plane
sketch12 = body.newObject("Sketcher::SketchObject", "Sketch011")
sketch12.Placement = App.Placement(V(0, -10.383352, 5.905976), App.Rotation(V(-1, 0, 0), V(0, -0.494410816, -0.869228362), V(0, -0.869228362, 0.494410816), "ZXY"))
sketch12.addGeometry([
    Part.Circle(V(-23.2, -4.2, 0), V(0, 0, 1), 2),
    Part.Circle(V(-54.5, -4.2, 0), V(0, 0, 1), 2),
    Part.Circle(V(-85.8, -4.2, 0), V(0, 0, 1), 2),
], False)
sketch12.addConstraint([
    Sketcher.Constraint("Equal", 0, 1),
    Sketcher.Constraint("Equal", 1, 2),
    Sketcher.Constraint("Horizontal", 0, 3, 1, 3),
    Sketcher.Constraint("Horizontal", 1, 3, 2, 3),
    Sketcher.Constraint("Diameter", 0, 4.0),
    Sketcher.Constraint("DistanceX", 1, 3, -1, 1, 54.5),
    Sketcher.Constraint("DistanceX", 2, 3, 0, 3, 62.5),
    Sketcher.Constraint("DistanceX", 0, 3, -1, 1, 23.25),
    Sketcher.Constraint("DistanceY", 0, 3, -1, 1, 4.161511),
])
pocket3 = body.newObject("PartDesign::Pocket", "Pocket002")
pocket3.Profile = sketch12
pocket3.Length = 16

# Sketch on an angled plane
sketch13 = body.newObject("Sketcher::SketchObject", "Sketch012")
sketch13.Placement = App.Placement(V(0, -10.383352, 5.905976), App.Rotation(V(1, 0, 0), V(0, 0.494410816, 0.869228362), V(0, -0.869228362, 0.494410816), "ZXY"))
sketch13.addGeometry([
    Part.Circle(V(23.2, 4.2, 0), V(0, 0, 1), 4),
    Part.Circle(V(54.5, 4.2, 0), V(0, 0, 1), 4),
    Part.Circle(V(85.8, 4.2, 0), V(0, 0, 1), 4),
], False)
sketch13.addConstraint([
    Sketcher.Constraint("Equal", 0, 1),
    Sketcher.Constraint("Equal", 1, 2),
    Sketcher.Constraint("Horizontal", 0, 3, 1, 3),
    Sketcher.Constraint("Horizontal", 1, 3, 2, 3),
    Sketcher.Constraint("Diameter", 0, 8.0),
    Sketcher.Constraint("DistanceX", -1, 1, 1, 3, 54.5),
    Sketcher.Constraint("DistanceX", 0, 3, 2, 3, 62.5),
    Sketcher.Constraint("DistanceX", -1, 1, 0, 3, 23.25),
    Sketcher.Constraint("DistanceY", -1, 1, 0, 3, 4.161511),
])
pocket4 = body.newObject("PartDesign::Pocket", "Pocket003")
pocket4.Profile = sketch13
pocket4.Length = 4

# Sketch on an angled plane
sketch14 = body.newObject("Sketcher::SketchObject", "Sketch013")
sketch14.Placement = App.Placement(V(0, -14.910266, -8.736993), App.Rotation(V(-1, 0, 0), V(0, 0.505568435, -0.862786508), V(0, -0.862786508, -0.505568435), "ZXY"))
sketch14.addGeometry([
    Part.Circle(V(-23.2, 13.4, 0), V(0, 0, 1), 2),
    Part.Circle(V(-54.5, 13.4, 0), V(0, 0, 1), 2),
    Part.Circle(V(-85.8, 13.4, 0), V(0, 0, 1), 2),
], False)
sketch14.addConstraint([
    Sketcher.Constraint("Equal", 0, 1),
    Sketcher.Constraint("Equal", 1, 2),
    Sketcher.Constraint("Horizontal", 0, 3, 1, 3),
    Sketcher.Constraint("Horizontal", 1, 3, 2, 3),
    Sketcher.Constraint("Diameter", 0, 4.0),
    Sketcher.Constraint("DistanceX", 1, 3, -1, 1, 54.5),
    Sketcher.Constraint("DistanceX", 2, 3, 0, 3, 62.5),
    Sketcher.Constraint("DistanceX", 0, 3, -1, 1, 23.25),
    Sketcher.Constraint("DistanceY", -1, 1, 0, 3, 13.367766),
])
pocket5 = body.newObject("PartDesign::Pocket", "Pocket004")
pocket5.Profile = sketch14
pocket5.Length = 16

# Sketch on an angled plane
sketch15 = body.newObject("Sketcher::SketchObject", "Sketch014")
sketch15.Placement = App.Placement(V(0, -14.910266, -8.736993), App.Rotation(V(1, 0, 0), V(0, -0.505568435, 0.862786508), V(0, -0.862786508, -0.505568435), "ZXY"))
sketch15.addGeometry([
    Part.Circle(V(23.2, -13.4, 0), V(0, 0, 1), 4),
    Part.Circle(V(54.5, -13.4, 0), V(0, 0, 1), 4),
    Part.Circle(V(85.8, -13.4, 0), V(0, 0, 1), 4),
], False)
sketch15.addConstraint([
    Sketcher.Constraint("Equal", 0, 1),
    Sketcher.Constraint("Equal", 1, 2),
    Sketcher.Constraint("Horizontal", 0, 3, 1, 3),
    Sketcher.Constraint("Horizontal", 1, 3, 2, 3),
    Sketcher.Constraint("Diameter", 0, 8.0),
    Sketcher.Constraint("DistanceX", -1, 1, 1, 3, 54.5),
    Sketcher.Constraint("DistanceX", 0, 3, 2, 3, 62.5),
    Sketcher.Constraint("DistanceX", -1, 1, 0, 3, 23.25),
    Sketcher.Constraint("DistanceY", 0, 3, -1, 1, 13.367766),
])
pocket6 = body.newObject("PartDesign::Pocket", "Pocket005")
pocket6.Profile = sketch15
pocket6.Length = 4

doc.recompute()
